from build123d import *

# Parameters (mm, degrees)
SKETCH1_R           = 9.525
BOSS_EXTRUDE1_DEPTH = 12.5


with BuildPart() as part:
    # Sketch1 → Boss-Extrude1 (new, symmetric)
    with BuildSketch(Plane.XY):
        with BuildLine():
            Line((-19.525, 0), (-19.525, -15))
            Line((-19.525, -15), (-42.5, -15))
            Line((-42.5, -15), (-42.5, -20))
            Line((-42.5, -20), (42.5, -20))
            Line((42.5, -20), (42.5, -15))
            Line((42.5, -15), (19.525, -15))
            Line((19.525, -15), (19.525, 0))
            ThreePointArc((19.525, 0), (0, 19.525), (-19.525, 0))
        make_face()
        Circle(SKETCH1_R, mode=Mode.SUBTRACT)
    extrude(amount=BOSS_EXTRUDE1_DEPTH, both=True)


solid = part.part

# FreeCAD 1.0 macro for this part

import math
import FreeCAD as App
import Part
import Sketcher

V = App.Vector

doc = App.newDocument("Part")
params = doc.addObject("Spreadsheet::Sheet", "Params")
for row, (alias, value) in enumerate([
    ("sketch1_diameter", "19.05 mm"),
    ("sketch1_width", "85 mm"),
    ("sketch1_height", "15 mm"),
    ("sketch1_height2", "5 mm"),
    ("pad1_length", "25 mm"),
], start=1):
    params.set(f"A{row}", alias)
    params.set(f"B{row}", "=" + value)
    params.setAlias(f"B{row}", alias)

body = doc.addObject("PartDesign::Body", "Body")

sketch1 = doc.addObject("Sketcher::SketchObject", "Sketch")
body.addObject(sketch1)
sketch1.AttachmentSupport = (doc.XY_Plane, [""])
sketch1.MapMode = "FlatFace"
sketch1.addGeometry(Part.LineSegment(V(-20, 0, 0), V(-20, -15, 0)), False)
sketch1.addGeometry(Part.LineSegment(V(-20, -15, 0), V(-42, -15, 0)), False)
sketch1.addGeometry(Part.LineSegment(V(-42, -15, 0), V(-42, -20, 0)), False)
sketch1.addGeometry(Part.LineSegment(V(-42, -20, 0), V(42, -20, 0)), False)
sketch1.addGeometry(Part.LineSegment(V(42, -20, 0), V(42, -15, 0)), False)
sketch1.addGeometry(Part.LineSegment(V(42, -15, 0), V(20, -15, 0)), False)
sketch1.addGeometry(Part.LineSegment(V(20, -15, 0), V(20, 0, 0)), False)
sketch1.addGeometry(Part.ArcOfCircle(Part.Circle(V(0, 0, 0), V(0, 0, 1), 20), math.radians(0), math.radians(180)), False)
sketch1.addGeometry(Part.Circle(V(0, 0, 0), V(0, 0, 1), 10), False)
sketch1.addConstraint(Sketcher.Constraint("Coincident", 0, 2, 1, 1))
sketch1.addConstraint(Sketcher.Constraint("Coincident", 1, 2, 2, 1))
sketch1.addConstraint(Sketcher.Constraint("Coincident", 2, 2, 3, 1))
sketch1.addConstraint(Sketcher.Constraint("Coincident", 3, 2, 4, 1))
sketch1.addConstraint(Sketcher.Constraint("Coincident", 4, 2, 5, 1))
sketch1.addConstraint(Sketcher.Constraint("Coincident", 5, 2, 6, 1))
sketch1.addConstraint(Sketcher.Constraint("Tangent", 6, 2, 7, 1))
sketch1.addConstraint(Sketcher.Constraint("Tangent", 7, 2, 0, 1))
sketch1.addConstraint(Sketcher.Constraint("Vertical", 0))
sketch1.addConstraint(Sketcher.Constraint("Horizontal", 1))
sketch1.addConstraint(Sketcher.Constraint("Vertical", 2))
sketch1.addConstraint(Sketcher.Constraint("Horizontal", 3))
sketch1.addConstraint(Sketcher.Constraint("Vertical", 4))
sketch1.addConstraint(Sketcher.Constraint("Horizontal", 5))
sketch1.addConstraint(Sketcher.Constraint("Vertical", 6))
sketch1.addConstraint(Sketcher.Constraint("Coincident", 7, 3, -1, 1))
sketch1.addConstraint(Sketcher.Constraint("Coincident", 8, 3, -1, 1))
sketch1.addConstraint(Sketcher.Constraint("Symmetric", 1, 2, 4, 2, -2))
sketch1.addConstraint(Sketcher.Constraint("Diameter", 8, 19.05))
sketch1.addConstraint(Sketcher.Constraint("DistanceX", 3, 1, 3, 2, 85.0))
sketch1.addConstraint(Sketcher.Constraint("DistanceY", 0, 2, 0, 1, 15.0))
sketch1.addConstraint(Sketcher.Constraint("DistanceY", 2, 2, 2, 1, 5.0))
sketch1.addConstraint(Sketcher.Constraint("Radius", 7, 19.525))
sketch1.setExpression("Constraints[18]", "Params.sketch1_diameter")
sketch1.setExpression("Constraints[19]", "Params.sketch1_width")
sketch1.setExpression("Constraints[20]", "Params.sketch1_height")
sketch1.setExpression("Constraints[21]", "Params.sketch1_height2")
pad1 = doc.addObject("PartDesign::Pad", "Pad")
body.addObject(pad1)
pad1.Profile = sketch1
pad1.setExpression("Length", "Params.pad1_length")
pad1.Midplane = True

doc.recompute()
